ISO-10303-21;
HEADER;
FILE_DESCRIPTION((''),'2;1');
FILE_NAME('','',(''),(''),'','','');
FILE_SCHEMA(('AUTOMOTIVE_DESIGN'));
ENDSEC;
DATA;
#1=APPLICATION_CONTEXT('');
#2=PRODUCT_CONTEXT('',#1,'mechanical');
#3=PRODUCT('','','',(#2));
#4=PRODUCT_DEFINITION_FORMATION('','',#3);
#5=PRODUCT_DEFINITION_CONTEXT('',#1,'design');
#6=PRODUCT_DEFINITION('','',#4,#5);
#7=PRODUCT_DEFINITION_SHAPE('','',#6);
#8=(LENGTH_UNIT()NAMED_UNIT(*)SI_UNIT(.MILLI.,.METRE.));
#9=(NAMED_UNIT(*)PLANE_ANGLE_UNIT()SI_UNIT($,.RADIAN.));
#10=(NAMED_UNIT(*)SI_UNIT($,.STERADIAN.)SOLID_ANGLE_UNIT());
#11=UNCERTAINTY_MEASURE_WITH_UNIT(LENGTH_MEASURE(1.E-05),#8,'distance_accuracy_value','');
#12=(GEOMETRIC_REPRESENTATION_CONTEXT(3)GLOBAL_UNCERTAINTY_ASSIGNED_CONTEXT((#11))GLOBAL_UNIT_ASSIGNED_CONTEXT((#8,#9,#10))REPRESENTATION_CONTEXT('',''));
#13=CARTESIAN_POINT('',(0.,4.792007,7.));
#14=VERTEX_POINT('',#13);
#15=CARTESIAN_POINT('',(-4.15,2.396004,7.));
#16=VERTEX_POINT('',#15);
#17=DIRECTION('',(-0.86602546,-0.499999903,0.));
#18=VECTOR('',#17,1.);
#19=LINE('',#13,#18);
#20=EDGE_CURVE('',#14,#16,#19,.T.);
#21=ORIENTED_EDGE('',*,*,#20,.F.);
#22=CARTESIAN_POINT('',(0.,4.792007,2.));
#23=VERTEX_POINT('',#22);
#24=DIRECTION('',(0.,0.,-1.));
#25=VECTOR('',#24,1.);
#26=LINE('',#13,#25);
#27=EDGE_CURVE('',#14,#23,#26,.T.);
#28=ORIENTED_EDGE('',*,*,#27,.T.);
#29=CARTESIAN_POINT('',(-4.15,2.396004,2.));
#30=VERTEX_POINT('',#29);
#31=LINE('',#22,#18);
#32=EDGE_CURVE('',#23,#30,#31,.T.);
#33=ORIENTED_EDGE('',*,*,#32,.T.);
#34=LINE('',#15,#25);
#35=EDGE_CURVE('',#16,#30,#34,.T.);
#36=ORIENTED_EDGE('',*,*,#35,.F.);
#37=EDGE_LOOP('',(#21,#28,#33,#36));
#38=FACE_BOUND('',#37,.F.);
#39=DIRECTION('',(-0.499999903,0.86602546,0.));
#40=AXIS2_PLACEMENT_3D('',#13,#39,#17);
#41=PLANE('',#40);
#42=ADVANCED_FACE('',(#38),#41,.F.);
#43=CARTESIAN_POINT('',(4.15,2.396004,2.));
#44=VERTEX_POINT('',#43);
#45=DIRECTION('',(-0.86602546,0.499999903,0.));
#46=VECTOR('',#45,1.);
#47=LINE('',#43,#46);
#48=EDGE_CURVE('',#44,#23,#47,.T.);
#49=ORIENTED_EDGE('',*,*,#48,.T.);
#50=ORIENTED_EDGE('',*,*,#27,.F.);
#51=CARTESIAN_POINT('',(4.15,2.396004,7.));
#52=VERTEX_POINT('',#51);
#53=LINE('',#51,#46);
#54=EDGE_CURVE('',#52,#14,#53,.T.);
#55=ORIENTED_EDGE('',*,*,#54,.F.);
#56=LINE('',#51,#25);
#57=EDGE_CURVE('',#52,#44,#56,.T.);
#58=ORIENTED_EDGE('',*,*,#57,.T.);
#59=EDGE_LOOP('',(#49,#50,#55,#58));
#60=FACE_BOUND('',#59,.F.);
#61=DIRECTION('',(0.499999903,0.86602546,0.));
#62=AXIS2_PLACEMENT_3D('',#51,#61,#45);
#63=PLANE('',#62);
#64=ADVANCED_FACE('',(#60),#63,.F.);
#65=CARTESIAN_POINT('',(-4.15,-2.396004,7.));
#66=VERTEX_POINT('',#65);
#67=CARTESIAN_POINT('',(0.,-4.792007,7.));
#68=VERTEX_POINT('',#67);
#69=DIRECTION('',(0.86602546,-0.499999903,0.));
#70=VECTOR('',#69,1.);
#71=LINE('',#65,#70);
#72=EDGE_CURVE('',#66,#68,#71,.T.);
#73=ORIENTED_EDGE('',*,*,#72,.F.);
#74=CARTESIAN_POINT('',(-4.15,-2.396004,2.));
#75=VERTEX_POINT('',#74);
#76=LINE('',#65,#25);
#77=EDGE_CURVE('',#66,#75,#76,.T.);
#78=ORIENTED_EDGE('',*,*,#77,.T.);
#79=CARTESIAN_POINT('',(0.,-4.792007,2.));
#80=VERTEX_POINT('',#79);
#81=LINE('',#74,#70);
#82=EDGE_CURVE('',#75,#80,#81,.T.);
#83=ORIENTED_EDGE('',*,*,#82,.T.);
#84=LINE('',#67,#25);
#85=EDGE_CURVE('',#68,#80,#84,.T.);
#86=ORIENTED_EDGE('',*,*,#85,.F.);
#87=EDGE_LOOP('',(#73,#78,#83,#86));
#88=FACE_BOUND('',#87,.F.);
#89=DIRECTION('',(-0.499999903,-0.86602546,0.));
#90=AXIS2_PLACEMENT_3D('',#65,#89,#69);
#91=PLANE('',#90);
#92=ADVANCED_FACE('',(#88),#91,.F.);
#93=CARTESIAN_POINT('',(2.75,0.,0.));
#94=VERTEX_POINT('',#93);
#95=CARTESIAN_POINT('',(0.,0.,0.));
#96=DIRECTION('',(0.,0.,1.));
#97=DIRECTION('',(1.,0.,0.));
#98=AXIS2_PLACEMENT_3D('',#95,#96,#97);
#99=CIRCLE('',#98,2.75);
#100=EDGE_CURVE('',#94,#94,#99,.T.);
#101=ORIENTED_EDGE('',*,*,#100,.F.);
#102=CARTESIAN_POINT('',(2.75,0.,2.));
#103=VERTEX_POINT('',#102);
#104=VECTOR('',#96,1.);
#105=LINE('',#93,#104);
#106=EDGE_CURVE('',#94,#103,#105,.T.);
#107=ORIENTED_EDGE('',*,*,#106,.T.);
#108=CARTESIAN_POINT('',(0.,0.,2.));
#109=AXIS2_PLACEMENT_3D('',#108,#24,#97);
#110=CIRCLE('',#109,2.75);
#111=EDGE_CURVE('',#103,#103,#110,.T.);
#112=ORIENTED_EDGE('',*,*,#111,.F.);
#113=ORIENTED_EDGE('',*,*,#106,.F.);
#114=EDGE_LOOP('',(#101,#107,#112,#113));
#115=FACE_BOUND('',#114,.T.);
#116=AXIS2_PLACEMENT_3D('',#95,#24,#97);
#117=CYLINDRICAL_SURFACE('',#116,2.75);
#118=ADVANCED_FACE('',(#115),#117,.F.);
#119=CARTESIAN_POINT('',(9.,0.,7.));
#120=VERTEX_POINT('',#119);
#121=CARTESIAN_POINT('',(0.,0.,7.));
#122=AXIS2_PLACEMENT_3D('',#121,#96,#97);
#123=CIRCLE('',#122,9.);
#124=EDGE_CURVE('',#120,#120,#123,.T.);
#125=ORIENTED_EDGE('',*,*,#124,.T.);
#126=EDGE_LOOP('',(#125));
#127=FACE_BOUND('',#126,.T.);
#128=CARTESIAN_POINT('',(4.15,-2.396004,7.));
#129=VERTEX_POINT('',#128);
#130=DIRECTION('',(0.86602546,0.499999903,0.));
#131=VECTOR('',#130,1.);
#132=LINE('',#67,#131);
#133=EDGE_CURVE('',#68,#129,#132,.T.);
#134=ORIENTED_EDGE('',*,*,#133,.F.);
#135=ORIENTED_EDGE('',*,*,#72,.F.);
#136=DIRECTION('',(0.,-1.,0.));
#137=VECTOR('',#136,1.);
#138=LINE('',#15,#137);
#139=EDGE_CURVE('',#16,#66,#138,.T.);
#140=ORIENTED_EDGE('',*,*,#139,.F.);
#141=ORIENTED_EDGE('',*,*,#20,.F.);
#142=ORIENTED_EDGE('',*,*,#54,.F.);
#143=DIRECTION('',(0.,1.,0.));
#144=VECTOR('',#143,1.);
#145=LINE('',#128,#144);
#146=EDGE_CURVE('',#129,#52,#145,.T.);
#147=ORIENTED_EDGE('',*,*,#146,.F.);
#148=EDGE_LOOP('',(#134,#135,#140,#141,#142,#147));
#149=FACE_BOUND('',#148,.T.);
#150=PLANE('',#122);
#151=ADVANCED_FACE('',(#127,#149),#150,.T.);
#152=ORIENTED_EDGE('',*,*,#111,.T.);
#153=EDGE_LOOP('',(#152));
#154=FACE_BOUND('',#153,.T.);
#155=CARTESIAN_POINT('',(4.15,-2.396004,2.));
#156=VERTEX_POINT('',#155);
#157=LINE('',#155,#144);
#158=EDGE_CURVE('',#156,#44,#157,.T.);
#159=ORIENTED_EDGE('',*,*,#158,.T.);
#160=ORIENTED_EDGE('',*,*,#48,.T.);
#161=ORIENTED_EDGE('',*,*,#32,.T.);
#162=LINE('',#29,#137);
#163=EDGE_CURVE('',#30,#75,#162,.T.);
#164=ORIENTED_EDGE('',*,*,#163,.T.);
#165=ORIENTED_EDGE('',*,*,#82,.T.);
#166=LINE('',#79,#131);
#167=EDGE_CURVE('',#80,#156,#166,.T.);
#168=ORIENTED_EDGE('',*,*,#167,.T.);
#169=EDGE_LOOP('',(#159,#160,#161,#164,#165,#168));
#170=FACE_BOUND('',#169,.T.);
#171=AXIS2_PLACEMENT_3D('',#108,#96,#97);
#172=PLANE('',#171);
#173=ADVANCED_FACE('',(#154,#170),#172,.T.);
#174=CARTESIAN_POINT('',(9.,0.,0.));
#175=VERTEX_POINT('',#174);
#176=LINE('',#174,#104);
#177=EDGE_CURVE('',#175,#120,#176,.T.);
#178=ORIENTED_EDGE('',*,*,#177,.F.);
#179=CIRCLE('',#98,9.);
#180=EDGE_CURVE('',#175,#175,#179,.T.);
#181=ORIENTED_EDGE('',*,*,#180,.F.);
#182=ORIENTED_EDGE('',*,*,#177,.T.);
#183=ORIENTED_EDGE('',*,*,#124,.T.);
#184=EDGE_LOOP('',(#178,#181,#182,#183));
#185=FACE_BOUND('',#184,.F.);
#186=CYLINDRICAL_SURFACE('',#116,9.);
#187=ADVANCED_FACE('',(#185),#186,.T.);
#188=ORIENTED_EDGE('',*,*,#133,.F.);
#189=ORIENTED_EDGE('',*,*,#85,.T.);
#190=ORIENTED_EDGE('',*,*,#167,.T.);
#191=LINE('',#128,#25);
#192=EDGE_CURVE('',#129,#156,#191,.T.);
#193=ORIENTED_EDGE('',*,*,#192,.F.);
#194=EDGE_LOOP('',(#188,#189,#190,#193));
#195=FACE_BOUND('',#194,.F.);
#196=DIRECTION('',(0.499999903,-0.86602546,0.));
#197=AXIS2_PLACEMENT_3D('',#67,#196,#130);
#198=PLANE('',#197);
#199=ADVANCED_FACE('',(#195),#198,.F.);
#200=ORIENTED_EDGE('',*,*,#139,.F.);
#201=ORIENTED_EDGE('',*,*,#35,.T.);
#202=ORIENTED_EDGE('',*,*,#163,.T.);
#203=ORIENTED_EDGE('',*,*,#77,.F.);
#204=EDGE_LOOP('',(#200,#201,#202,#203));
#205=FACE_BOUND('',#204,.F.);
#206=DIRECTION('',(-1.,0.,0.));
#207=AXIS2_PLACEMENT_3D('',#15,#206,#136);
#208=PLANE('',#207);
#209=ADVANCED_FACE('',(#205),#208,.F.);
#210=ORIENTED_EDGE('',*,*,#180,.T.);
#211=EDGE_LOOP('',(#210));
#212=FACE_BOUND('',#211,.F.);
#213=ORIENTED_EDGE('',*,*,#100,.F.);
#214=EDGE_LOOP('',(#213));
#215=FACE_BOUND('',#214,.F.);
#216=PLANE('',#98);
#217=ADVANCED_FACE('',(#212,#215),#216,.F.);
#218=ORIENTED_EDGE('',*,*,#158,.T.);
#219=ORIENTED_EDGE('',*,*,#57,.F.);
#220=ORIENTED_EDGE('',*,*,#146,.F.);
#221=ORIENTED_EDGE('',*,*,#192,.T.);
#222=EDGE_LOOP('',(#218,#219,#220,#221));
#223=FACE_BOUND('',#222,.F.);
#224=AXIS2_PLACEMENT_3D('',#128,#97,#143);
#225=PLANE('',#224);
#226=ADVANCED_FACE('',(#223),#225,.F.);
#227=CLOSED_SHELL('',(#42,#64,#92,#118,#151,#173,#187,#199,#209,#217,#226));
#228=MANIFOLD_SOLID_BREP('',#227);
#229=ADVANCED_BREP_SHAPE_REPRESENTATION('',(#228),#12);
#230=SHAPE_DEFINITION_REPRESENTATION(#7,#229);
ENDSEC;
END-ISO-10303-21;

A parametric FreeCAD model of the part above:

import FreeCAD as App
import Part
import Sketcher
Q = App.Units.Quantity

doc = App.newDocument("Part")
body = doc.addObject("PartDesign::Body", "Body")

# Sketch on XY plane
sketch1 = doc.addObject("Sketcher::SketchObject", "Sketch")
body.addObject(sketch1)
sketch1.AttachmentSupport = (doc.XY_Plane, [""])
sketch1.MapMode = "FlatFace"
sketch1.addGeometry(Part.Circle(App.Vector(0, 0, 0), App.Vector(0, 0, 1), 9), False)
sketch1.addGeometry(Part.Circle(App.Vector(0, 0, 0), App.Vector(0, 0, 1), 2.8), False)
sketch1.addConstraint(Sketcher.Constraint("Coincident", 0, 3, -1, 1))
sketch1.addConstraint(Sketcher.Constraint("Coincident", 1, 3, -1, 1))
sketch1.addConstraint(Sketcher.Constraint("Diameter", 0, Q("18 mm")))
sketch1.addConstraint(Sketcher.Constraint("Diameter", 1, Q("5.5 mm")))
pad1 = doc.addObject("PartDesign::Pad", "Pad")
body.addObject(pad1)
pad1.Profile = sketch1
pad1.Length = 7

# Sketch on XY plane
sketch2 = doc.addObject("Sketcher::SketchObject", "Sketch001")
body.addObject(sketch2)
sketch2.AttachmentSupport = (doc.XY_Plane, [""])
sketch2.MapMode = "FlatFace"
sketch2.AttachmentOffset = App.Placement(App.Vector(0, 0, 7), App.Rotation())
sketch2.addGeometry(Part.LineSegment(App.Vector(-4.2, 2.4, 0), App.Vector(-4.2, -2.4, 0)), False)
sketch2.addGeometry(Part.LineSegment(App.Vector(-4.2, -2.4, 0), App.Vector(0, -4.8, 0)), False)
sketch2.addGeometry(Part.LineSegment(App.Vector(0, -4.8, 0), App.Vector(4.2, -2.4, 0)), False)
sketch2.addGeometry(Part.LineSegment(App.Vector(4.2, -2.4, 0), App.Vector(4.2, 2.4, 0)), False)
sketch2.addGeometry(Part.LineSegment(App.Vector(4.2, 2.4, 0), App.Vector(0, 4.8, 0)), False)
sketch2.addGeometry(Part.LineSegment(App.Vector(0, 4.8, 0), App.Vector(-4.2, 2.4, 0)), False)
sketch2.addConstraint(Sketcher.Constraint("Coincident", 0, 2, 1, 1))
sketch2.addConstraint(Sketcher.Constraint("Coincident", 1, 2, 2, 1))
sketch2.addConstraint(Sketcher.Constraint("Coincident", 2, 2, 3, 1))
sketch2.addConstraint(Sketcher.Constraint("Coincident", 3, 2, 4, 1))
sketch2.addConstraint(Sketcher.Constraint("Coincident", 4, 2, 5, 1))
sketch2.addConstraint(Sketcher.Constraint("Coincident", 5, 2, 0, 1))
sketch2.addConstraint(Sketcher.Constraint("Vertical", 0))
sketch2.addConstraint(Sketcher.Constraint("Vertical", 3))
sketch2.addConstraint(Sketcher.Constraint("Symmetric", 0, 2, 3, 2, -1, 1))
sketch2.addConstraint(Sketcher.Constraint("Symmetric", 1, 2, 4, 2, -1, 1))
sketch2.addConstraint(Sketcher.Constraint("PointOnObject", 1, 2, -2))
sketch2.addConstraint(Sketcher.Constraint("Parallel", 2, 5))
sketch2.addConstraint(Sketcher.Constraint("Horizontal", 0, 2, 2, 2))
sketch2.addConstraint(Sketcher.Constraint("Angle", 1, Q("-29.999994 deg")))
sketch2.addConstraint(Sketcher.Constraint("DistanceX", 0, 2, 2, 2, Q("8.3 mm")))
sketch2.addConstraint(Sketcher.Constraint("DistanceY", 0, 2, 0, 1, Q("4.792008 mm")))
pocket1 = doc.addObject("PartDesign::Pocket", "Pocket")
body.addObject(pocket1)
pocket1.Profile = sketch2
pocket1.Length = 5

doc.recompute()
